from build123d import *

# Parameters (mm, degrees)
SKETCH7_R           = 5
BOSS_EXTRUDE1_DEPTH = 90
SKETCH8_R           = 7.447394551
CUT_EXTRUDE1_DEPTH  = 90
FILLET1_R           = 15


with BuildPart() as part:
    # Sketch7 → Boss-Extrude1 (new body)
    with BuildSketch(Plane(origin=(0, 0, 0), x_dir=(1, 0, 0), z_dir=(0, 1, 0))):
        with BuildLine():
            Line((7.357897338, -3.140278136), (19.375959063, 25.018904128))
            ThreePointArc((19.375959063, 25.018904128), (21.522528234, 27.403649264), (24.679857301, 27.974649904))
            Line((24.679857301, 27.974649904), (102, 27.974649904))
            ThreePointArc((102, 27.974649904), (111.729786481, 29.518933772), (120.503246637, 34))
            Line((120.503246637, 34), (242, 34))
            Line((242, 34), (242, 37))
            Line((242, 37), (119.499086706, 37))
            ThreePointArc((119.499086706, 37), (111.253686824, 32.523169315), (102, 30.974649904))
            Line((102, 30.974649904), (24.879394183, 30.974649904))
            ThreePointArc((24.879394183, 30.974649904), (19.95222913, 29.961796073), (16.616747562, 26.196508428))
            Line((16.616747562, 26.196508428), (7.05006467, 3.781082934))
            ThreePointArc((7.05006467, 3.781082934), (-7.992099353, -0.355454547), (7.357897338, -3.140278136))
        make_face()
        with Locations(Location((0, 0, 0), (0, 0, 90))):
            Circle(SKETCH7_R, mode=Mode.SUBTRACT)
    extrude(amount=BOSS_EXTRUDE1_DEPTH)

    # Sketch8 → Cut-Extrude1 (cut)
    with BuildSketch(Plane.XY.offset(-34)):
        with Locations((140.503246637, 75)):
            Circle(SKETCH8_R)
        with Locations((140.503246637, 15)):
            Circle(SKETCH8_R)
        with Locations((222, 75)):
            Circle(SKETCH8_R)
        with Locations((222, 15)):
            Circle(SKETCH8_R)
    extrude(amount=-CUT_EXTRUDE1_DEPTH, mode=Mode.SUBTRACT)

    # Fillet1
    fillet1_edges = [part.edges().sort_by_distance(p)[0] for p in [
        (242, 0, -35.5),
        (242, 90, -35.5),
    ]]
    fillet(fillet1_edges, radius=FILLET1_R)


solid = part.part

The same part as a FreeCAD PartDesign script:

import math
import FreeCAD as App
import Part
import Sketcher

V = App.Vector


def edges_at(feature, points):
    """Names of the edges that pass closest to the given points."""
    edges = feature.Shape.Edges
    near = lambda p: min(range(len(edges)), key=lambda i: edges[i].distToShape(Part.Vertex(*p))[0])
    return sorted({f"Edge{near(p) + 1}" for p in points})

doc = App.newDocument("Part")
params = doc.addObject("Spreadsheet::Sheet", "Params")
for row, (alias, value) in enumerate([
    ("sketch1_diameter", "10 mm"),
    ("sketch1_radius", "8 mm"),
    ("sketch1_height", "3 mm"),
    ("pad1_length", "90 mm"),
    ("pocket1_length", "90 mm"),
    ("fillet_radius", "15 mm"),
], start=1):
    params.set(f"A{row}", alias)
    params.set(f"B{row}", "=" + value)
    params.setAlias(f"B{row}", alias)

body = doc.addObject("PartDesign::Body", "Body")

# Sketch on XZ plane
sketch1 = body.newObject("Sketcher::SketchObject", "Sketch")
sketch1.AttachmentSupport = (doc.getObject("XZ_Plane"), [""])
sketch1.MapMode = "FlatFace"
sketch1.addGeometry([
    Part.LineSegment(V(7.4, 3.1, 0), V(19.4, -25, 0)),  # 0
    Part.ArcOfCircle(Part.Circle(V(23.9, -23.1, 0), V(0, 0, 1), 5), math.radians(-157), math.radians(-81)),  # 1
    Part.LineSegment(V(24.7, -28, 0), V(102, -28, 0)),  # 2
    Part.ArcOfCircle(Part.Circle(V(102, -59.4, 0), V(0, 0, 1), 31.4), math.radians(54), math.radians(90)),  # 3
    Part.LineSegment(V(120.5, -34, 0), V(242, -34, 0)),  # 4
    Part.LineSegment(V(242, -34, 0), V(242, -37, 0)),  # 5
    Part.LineSegment(V(242, -37, 0), V(119.5, -37, 0)),  # 6
    Part.ArcOfCircle(Part.Circle(V(102, -59.4, 0), V(0, 0, 1), 28.4), math.radians(52), math.radians(90)),  # 7
    Part.LineSegment(V(102, -31, 0), V(24.9, -31, 0)),  # 8
    Part.ArcOfCircle(Part.Circle(V(23.9, -23.1, 0), V(0, 0, 1), 8), math.radians(-157), math.radians(-83)),  # 9
    Part.LineSegment(V(16.6, -26.2, 0), V(7.1, -3.8, 0)),  # 10
    Part.ArcOfCircle(Part.Circle(V(0, 0, 0), V(0, 0, 1), 8), math.radians(23), math.radians(332)),  # 11
    Part.Circle(V(0, 0, 0), V(0, 0, 1), 5),  # 12
], False)
sketch1.addConstraint([
    Sketcher.Constraint("Tangent", 0, 2, 1, 1),
    Sketcher.Constraint("Coincident", 1, 2, 2, 1),
    Sketcher.Constraint("Tangent", 2, 2, 3, 2),
    Sketcher.Constraint("Coincident", 3, 1, 4, 1),
    Sketcher.Constraint("Coincident", 4, 2, 5, 1),
    Sketcher.Constraint("Coincident", 5, 2, 6, 1),
    Sketcher.Constraint("Coincident", 6, 2, 7, 1),
    Sketcher.Constraint("Tangent", 7, 2, 8, 1),
    Sketcher.Constraint("Coincident", 8, 2, 9, 2),
    Sketcher.Constraint("Tangent", 9, 1, 10, 1),
    Sketcher.Constraint("Coincident", 10, 2, 11, 2),
    Sketcher.Constraint("Tangent", 11, 1, 0, 1),
    Sketcher.Constraint("Horizontal", 2),
    Sketcher.Constraint("Horizontal", 4),
    Sketcher.Constraint("Vertical", 5),
    Sketcher.Constraint("Horizontal", 6),
    Sketcher.Constraint("Horizontal", 8),
    Sketcher.Constraint("Coincident", 11, 3, -1, 1),
    Sketcher.Constraint("Coincident", 12, 3, -1, 1),
    Sketcher.Constraint("Coincident", 7, 3, 3, 3),
    Sketcher.Constraint("Coincident", 9, 3, 1, 3),
    Sketcher.Constraint("Parallel", 0, 10),
    Sketcher.Constraint("Diameter", 12, 10.0),
    Sketcher.Constraint("Radius", 11, 8.0),
    Sketcher.Constraint("DistanceY", 5, 2, 5, 1, 3.0),
    Sketcher.Constraint("DistanceX", -1, 1, 3, 3, 102.0),
    Sketcher.Constraint("DistanceY", 3, 1, -1, 1, 34.0),
    Sketcher.Constraint("DistanceX", -1, 1, 4, 2, 242.0),
    Sketcher.Constraint("DistanceY", 7, 2, 2, 2, 3.0),
    Sketcher.Constraint("Radius", 1, 4.958065),
    Sketcher.Constraint("Radius", 3, 31.423484),
    Sketcher.Constraint("Radius", 9, 7.958065),
    Sketcher.Constraint("DistanceX", 0, 2, 1, 2, 5.303898),
    Sketcher.Constraint("DistanceX", 2, 1, 2, 2, 77.320143),
    Sketcher.Constraint("DistanceX", 4, 1, 4, 2, 121.496753),
])
sketch1.setExpression("Constraints[22]", "Params.sketch1_diameter")
sketch1.setExpression("Constraints[23]", "Params.sketch1_radius")
sketch1.setExpression("Constraints[24]", "Params.sketch1_height")
pad1 = body.newObject("PartDesign::Pad", "Pad")
pad1.Profile = sketch1
pad1.setExpression("Length", "Params.pad1_length")
pad1.Reversed = True

# Sketch on XY plane
sketch2 = body.newObject("Sketcher::SketchObject", "Sketch001")
sketch2.AttachmentSupport = (doc.getObject("XY_Plane"), [""])
sketch2.MapMode = "FlatFace"
sketch2.AttachmentOffset = App.Placement(V(0, 0, -34), App.Rotation())
sketch2.addGeometry([
    Part.Circle(V(141, 75, 0), V(0, 0, 1), 7),
    Part.Circle(V(141, 15, 0), V(0, 0, 1), 7),
    Part.Circle(V(222, 75, 0), V(0, 0, 1), 7),
    Part.Circle(V(222, 15, 0), V(0, 0, 1), 7),
], False)
sketch2.addConstraint([
    Sketcher.Constraint("Equal", 0, 1),
    Sketcher.Constraint("Equal", 1, 2),
    Sketcher.Constraint("Equal", 2, 3),
    Sketcher.Constraint("Horizontal", 0, 3, 2, 3),
    Sketcher.Constraint("Horizontal", 1, 3, 3, 3),
    Sketcher.Constraint("Vertical", 0, 3, 1, 3),
    Sketcher.Constraint("Vertical", 2, 3, 3, 3),
    Sketcher.Constraint("DistanceY", -1, 1, 0, 3, 75.0),
    Sketcher.Constraint("DistanceY", -1, 1, 1, 3, 15.0),
    Sketcher.Constraint("DistanceX", -1, 1, 2, 3, 222.0),
    Sketcher.Constraint("Diameter", 0, 14.894789),
    Sketcher.Constraint("DistanceX", -1, 1, 0, 3, 140.503247),
])
pocket1 = body.newObject("PartDesign::Pocket", "Pocket")
pocket1.Profile = sketch2
pocket1.setExpression("Length", "Params.pocket1_length")
doc.recompute()

fillet = body.newObject("PartDesign::Fillet", "Fillet")
fillet.Base = (pocket1, edges_at(pocket1, [(242, 0, -35.5), (242, 90, -35.5)]))
fillet.setExpression("Radius", "Params.fillet_radius")

doc.recompute()
